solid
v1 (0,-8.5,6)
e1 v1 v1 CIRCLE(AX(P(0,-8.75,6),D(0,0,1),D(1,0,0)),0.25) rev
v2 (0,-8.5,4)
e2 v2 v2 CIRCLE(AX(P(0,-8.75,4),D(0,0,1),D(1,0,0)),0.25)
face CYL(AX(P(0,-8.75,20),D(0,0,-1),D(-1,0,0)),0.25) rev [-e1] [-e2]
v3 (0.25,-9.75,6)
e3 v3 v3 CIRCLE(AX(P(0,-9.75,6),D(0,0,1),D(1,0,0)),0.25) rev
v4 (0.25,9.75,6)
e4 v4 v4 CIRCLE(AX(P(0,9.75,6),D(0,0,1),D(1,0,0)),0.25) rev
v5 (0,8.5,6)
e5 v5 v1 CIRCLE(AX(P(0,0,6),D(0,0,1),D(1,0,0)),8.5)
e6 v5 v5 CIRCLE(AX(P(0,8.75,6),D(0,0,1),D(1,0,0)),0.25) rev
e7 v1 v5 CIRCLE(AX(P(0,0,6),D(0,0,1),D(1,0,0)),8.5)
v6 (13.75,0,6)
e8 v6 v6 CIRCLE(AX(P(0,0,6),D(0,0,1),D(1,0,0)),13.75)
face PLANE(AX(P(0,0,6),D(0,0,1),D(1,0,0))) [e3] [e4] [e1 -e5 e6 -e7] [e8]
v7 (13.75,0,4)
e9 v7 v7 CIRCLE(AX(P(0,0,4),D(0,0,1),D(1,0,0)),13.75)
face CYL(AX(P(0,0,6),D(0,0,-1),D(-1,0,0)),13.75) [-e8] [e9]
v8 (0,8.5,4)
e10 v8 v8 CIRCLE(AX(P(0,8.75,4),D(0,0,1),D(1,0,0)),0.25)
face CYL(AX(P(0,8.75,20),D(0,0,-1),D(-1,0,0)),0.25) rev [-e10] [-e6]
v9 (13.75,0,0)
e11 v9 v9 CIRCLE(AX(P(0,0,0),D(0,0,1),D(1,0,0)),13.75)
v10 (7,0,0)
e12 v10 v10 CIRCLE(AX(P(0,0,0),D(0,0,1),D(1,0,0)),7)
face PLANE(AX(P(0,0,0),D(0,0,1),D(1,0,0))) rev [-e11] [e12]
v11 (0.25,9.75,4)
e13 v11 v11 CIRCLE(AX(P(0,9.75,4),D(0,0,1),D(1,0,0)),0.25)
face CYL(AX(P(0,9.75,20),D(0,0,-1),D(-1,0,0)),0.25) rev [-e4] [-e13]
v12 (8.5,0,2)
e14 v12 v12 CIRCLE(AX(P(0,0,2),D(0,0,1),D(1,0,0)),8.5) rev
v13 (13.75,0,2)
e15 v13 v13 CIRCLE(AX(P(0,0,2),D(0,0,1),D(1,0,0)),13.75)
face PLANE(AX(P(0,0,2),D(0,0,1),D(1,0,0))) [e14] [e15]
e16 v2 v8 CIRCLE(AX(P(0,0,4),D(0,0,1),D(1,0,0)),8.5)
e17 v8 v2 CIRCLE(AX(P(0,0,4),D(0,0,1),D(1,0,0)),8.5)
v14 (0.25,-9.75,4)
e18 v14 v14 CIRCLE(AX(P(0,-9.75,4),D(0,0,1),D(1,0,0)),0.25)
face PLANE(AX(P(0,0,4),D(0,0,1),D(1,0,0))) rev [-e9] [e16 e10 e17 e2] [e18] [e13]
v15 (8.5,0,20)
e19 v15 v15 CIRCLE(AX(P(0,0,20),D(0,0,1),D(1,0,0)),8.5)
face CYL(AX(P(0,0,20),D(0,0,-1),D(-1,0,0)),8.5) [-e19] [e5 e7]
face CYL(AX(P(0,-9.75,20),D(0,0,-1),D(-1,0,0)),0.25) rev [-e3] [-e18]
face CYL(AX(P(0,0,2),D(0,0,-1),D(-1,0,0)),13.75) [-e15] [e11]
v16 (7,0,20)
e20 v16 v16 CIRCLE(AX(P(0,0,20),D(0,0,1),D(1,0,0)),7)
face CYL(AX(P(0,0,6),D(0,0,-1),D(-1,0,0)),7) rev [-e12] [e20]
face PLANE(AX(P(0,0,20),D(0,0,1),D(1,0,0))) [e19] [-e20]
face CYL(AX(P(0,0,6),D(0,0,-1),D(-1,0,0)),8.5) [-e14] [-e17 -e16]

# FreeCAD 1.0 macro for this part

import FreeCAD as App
import Part
import Sketcher
from FreeCAD import Vector

doc = App.newDocument("Part")
body = doc.addObject("PartDesign::Body", "Body")

# Sketch on XY plane
sketch1 = body.newObject("Sketcher::SketchObject", "Sketch")
sketch1.AttachmentSupport = (doc.getObject("XY_Plane"), [""])
sketch1.MapMode = "FlatFace"
sketch1.addGeometry(Part.Circle(Vector(0, 0, 0), Vector(0, 0, 1), 14), False)
sketch1.addConstraint([
    Sketcher.Constraint("Coincident", 0, 3, -1, 1),
    Sketcher.Constraint("Diameter", 0, 27.5),
])
pad1 = body.newObject("PartDesign::Pad", "Pad")
pad1.Profile = sketch1
pad1.Length = 2

# Sketch on XY plane
sketch2 = body.newObject("Sketcher::SketchObject", "Sketch001")
sketch2.AttachmentSupport = (doc.getObject("XY_Plane"), [""])
sketch2.MapMode = "FlatFace"
sketch2.addGeometry(Part.Circle(Vector(0, 0, 0), Vector(0, 0, 1), 8), False)
sketch2.addConstraint([
    Sketcher.Constraint("Coincident", 0, 3, -1, 1),
    Sketcher.Constraint("Diameter", 0, 17.0),
])
pad2 = body.newObject("PartDesign::Pad", "Pad001")
pad2.Profile = sketch2
pad2.Length = 6

# Sketch on XY plane
sketch3 = body.newObject("Sketcher::SketchObject", "Sketch002")
sketch3.AttachmentSupport = (doc.getObject("XY_Plane"), [""])
sketch3.MapMode = "FlatFace"
sketch3.AttachmentOffset = App.Placement(Vector(0, 0, 4), App.Rotation())
sketch3.addGeometry(Part.Circle(Vector(0, 0, 0), Vector(0, 0, 1), 14), False)
sketch3.addConstraint([
    Sketcher.Constraint("Coincident", 0, 3, -1, 1),
    Sketcher.Constraint("Diameter", 0, 27.5),
])
pad3 = body.newObject("PartDesign::Pad", "Pad002")
pad3.Profile = sketch3
pad3.Length = 2

# Sketch on XY plane
sketch4 = body.newObject("Sketcher::SketchObject", "Sketch003")
sketch4.AttachmentSupport = (doc.getObject("XY_Plane"), [""])
sketch4.MapMode = "FlatFace"
sketch4.addGeometry(Part.Circle(Vector(0, 0, 0), Vector(0, 0, 1), 7), False)
sketch4.addConstraint([
    Sketcher.Constraint("Coincident", 0, 3, -1, 1),
    Sketcher.Constraint("Diameter", 0, 14.0),
])
pocket1 = body.newObject("PartDesign::Pocket", "Pocket")
pocket1.Profile = sketch4
pocket1.Type = "ThroughAll"
pocket1.Reversed = True

# Sketch on XY plane
sketch5 = body.newObject("Sketcher::SketchObject", "Sketch004")
sketch5.AttachmentSupport = (doc.getObject("XY_Plane"), [""])
sketch5.MapMode = "FlatFace"
sketch5.AttachmentOffset = App.Placement(Vector(0, 0, 6), App.Rotation())
sketch5.addGeometry([
    Part.Circle(Vector(0, 0, 0), Vector(0, 0, 1), 8),
    Part.Circle(Vector(0, 0, 0), Vector(0, 0, 1), 7),
], False)
sketch5.addConstraint([
    Sketcher.Constraint("Coincident", 0, 3, -1, 1),
    Sketcher.Constraint("Coincident", 1, 3, -1, 1),
    Sketcher.Constraint("Diameter", 0, 17.0),
    Sketcher.Constraint("Diameter", 1, 14.0),
])
pad4 = body.newObject("PartDesign::Pad", "Pad003")
pad4.Profile = sketch5
pad4.Length = 14

# Sketch on XY plane
sketch6 = body.newObject("Sketcher::SketchObject", "Sketch005")
sketch6.AttachmentSupport = (doc.getObject("XY_Plane"), [""])
sketch6.MapMode = "FlatFace"
sketch6.AttachmentOffset = App.Placement(Vector(0, 0, 4), App.Rotation())
sketch6.addGeometry([
    Part.Circle(Vector(0, 9.75, 0), Vector(0, 0, 1), 0.25),
    Part.Circle(Vector(0, -9.75, 0), Vector(0, 0, 1), 0.25),
    Part.Circle(Vector(0, 8.75, 0), Vector(0, 0, 1), 0.25),
    Part.Circle(Vector(0, -8.75, 0), Vector(0, 0, 1), 0.25),
], False)
sketch6.addConstraint([
    Sketcher.Constraint("Equal", 0, 1),
    Sketcher.Constraint("Equal", 1, 2),
    Sketcher.Constraint("Equal", 2, 3),
    Sketcher.Constraint("Symmetric", 0, 3, 1, 3, -1, 1),
    Sketcher.Constraint("Symmetric", 2, 3, 3, 3, -1, 1),
    Sketcher.Constraint("PointOnObject", 0, 3, -2),
    Sketcher.Constraint("PointOnObject", 2, 3, -2),
    Sketcher.Constraint("Diameter", 0, 0.5),
    Sketcher.Constraint("DistanceY", 2, 3, 0, 3, 1.0),
    Sketcher.Constraint("DistanceY", 1, 3, 0, 3, 19.5),
])
pocket2 = body.newObject("PartDesign::Pocket", "Pocket001")
pocket2.Profile = sketch6
pocket2.Type = "ThroughAll"
pocket2.Reversed = True

doc.recompute()
